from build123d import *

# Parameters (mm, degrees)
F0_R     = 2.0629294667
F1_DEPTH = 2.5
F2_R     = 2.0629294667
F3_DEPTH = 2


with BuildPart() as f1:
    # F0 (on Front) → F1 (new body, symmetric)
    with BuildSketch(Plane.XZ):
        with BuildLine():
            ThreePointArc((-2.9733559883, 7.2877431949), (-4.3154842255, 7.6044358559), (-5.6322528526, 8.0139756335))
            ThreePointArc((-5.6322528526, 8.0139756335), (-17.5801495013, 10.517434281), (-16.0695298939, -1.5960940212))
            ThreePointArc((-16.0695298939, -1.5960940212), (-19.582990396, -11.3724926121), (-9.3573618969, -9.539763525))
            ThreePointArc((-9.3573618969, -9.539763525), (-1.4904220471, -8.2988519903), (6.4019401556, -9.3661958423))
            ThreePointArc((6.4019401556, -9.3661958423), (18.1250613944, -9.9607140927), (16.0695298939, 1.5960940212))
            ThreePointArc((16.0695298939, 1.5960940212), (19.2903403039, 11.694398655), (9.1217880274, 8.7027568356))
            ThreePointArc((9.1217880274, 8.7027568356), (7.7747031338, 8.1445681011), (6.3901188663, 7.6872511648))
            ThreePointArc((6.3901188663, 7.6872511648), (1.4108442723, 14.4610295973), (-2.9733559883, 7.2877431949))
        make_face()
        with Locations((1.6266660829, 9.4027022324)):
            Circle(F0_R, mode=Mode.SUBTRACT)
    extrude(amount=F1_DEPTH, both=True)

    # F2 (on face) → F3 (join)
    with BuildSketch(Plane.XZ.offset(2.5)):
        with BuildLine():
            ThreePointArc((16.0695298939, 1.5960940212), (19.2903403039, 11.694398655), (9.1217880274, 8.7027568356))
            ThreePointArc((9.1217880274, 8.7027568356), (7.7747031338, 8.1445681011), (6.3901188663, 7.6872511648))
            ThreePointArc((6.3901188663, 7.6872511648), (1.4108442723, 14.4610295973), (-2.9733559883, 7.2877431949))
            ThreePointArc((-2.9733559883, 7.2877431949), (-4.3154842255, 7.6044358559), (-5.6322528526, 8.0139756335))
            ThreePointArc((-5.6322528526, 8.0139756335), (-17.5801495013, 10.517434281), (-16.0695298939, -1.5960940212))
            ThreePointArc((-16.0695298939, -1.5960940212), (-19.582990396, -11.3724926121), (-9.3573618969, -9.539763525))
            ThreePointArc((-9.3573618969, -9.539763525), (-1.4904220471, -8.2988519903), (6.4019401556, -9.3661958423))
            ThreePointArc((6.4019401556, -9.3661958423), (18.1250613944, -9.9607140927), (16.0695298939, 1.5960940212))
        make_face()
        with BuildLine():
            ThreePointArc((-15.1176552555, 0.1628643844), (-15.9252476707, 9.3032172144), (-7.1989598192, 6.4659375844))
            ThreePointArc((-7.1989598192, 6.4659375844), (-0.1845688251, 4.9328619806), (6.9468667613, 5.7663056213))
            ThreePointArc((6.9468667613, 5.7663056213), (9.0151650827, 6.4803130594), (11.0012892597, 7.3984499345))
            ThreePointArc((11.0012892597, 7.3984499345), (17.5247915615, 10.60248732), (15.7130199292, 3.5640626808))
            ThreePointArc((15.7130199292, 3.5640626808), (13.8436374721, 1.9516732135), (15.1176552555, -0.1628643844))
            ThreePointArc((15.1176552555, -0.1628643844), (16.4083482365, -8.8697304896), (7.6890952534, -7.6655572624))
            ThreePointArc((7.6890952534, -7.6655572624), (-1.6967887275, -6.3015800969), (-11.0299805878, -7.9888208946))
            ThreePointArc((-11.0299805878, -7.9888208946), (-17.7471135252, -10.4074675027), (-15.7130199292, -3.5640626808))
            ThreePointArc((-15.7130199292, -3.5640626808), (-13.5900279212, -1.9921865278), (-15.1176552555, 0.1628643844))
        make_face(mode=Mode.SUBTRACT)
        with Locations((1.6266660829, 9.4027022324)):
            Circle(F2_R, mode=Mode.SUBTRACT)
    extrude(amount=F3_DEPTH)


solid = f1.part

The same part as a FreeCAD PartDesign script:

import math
import FreeCAD as App
import Part
import Sketcher

V = App.Vector
Q = App.Units.Quantity

doc = App.newDocument("Part")
body = doc.addObject("PartDesign::Body", "Body")

sketch1 = doc.addObject("Sketcher::SketchObject", "Sketch")
body.addObject(sketch1)
sketch1.AttachmentSupport = (doc.XZ_Plane, [""])
sketch1.MapMode = "FlatFace"
sketch1.addGeometry([
    Part.ArcOfCircle(Part.Circle(V(0.890202, 26.663598, 0), V(0, 0, 1), 19.757298), math.radians(-109.276597), math.radians(-101.276908)),
    Part.ArcOfCircle(Part.Circle(V(-12.5, 5, 0), V(0, 0, 1), 7.5), math.radians(23.694722), math.radians(241.579604)),
    Part.ArcOfCircle(Part.Circle(V(-15, -7.5, 0), V(0, 0, 1), 6), math.radians(100.268134), math.radians(340.125527)),
    Part.ArcOfCircle(Part.Circle(V(-1.187814, -35.774543, 0), V(0, 0, 1), 27.477357), math.radians(73.965358), math.radians(107.296664)),
    Part.ArcOfCircle(Part.Circle(V(12.5, -5, 0), V(0, 0, 1), 7.5), math.radians(-144.39743), math.radians(61.579604)),
    Part.ArcOfCircle(Part.Circle(V(15, 7.5, 0), V(0, 0, 1), 6), math.radians(-79.731866), math.radians(168.436171)),
    Part.ArcOfCircle(Part.Circle(V(0.890202, 26.663598, 0), V(0, 0, 1), 19.757298), math.radians(-73.836819), math.radians(-65.377664)),
    Part.ArcOfCircle(Part.Circle(V(1.626666, 9.402702, 0), V(0, 0, 1), 5.062929), math.radians(-19.805351), math.radians(204.691624)),
    Part.Circle(V(1.626666, 9.402702, 0), V(0, 0, 1), 2.062929),
], False)
sketch1.addConstraint([
    Sketcher.Constraint("Coincident", 0, 1, 1, 1),
    Sketcher.Constraint("Coincident", 1, 2, 2, 1),
    Sketcher.Constraint("Coincident", 2, 2, 3, 2),
    Sketcher.Constraint("Coincident", 3, 1, 4, 1),
    Sketcher.Constraint("Coincident", 4, 2, 5, 1),
    Sketcher.Constraint("Coincident", 5, 2, 6, 2),
    Sketcher.Constraint("Coincident", 6, 1, 7, 1),
    Sketcher.Constraint("Coincident", 7, 2, 0, 2),
    Sketcher.Constraint("Coincident", 6, 3, 0, 3),
    Sketcher.Constraint("Coincident", 8, 3, 7, 3),
    Sketcher.Constraint("Equal", 1, 4),
    Sketcher.Constraint("Equal", 2, 5),
    Sketcher.Constraint("Equal", 0, 6),
    Sketcher.Constraint("Symmetric", 1, 3, 4, 3, -1, 1),
    Sketcher.Constraint("Symmetric", 2, 3, 5, 3, -1, 1),
    Sketcher.Constraint("Radius", 2, Q("6 mm")),
    Sketcher.Constraint("Radius", 1, Q("7.5 mm")),
    Sketcher.Constraint("DistanceY", -1, 1, 1, 3, Q("5 mm")),
    Sketcher.Constraint("DistanceX", 2, 3, -1, 1, Q("15 mm")),
    Sketcher.Constraint("DistanceX", 1, 3, 4, 3, Q("25 mm")),
    Sketcher.Constraint("DistanceY", 2, 3, 5, 3, Q("15 mm")),
    Sketcher.Constraint("Radius", 0, Q("19.757298 mm")),
    Sketcher.Constraint("Diameter", 8, Q("4.125859 mm")),
    Sketcher.Constraint("Radius", 7, Q("5.062929 mm")),
    Sketcher.Constraint("Radius", 3, Q("27.477357 mm")),
    Sketcher.Constraint("DistanceX", -1, 1, 0, 3, Q("0.890202 mm")),
    Sketcher.Constraint("DistanceY", -1, 1, 0, 3, Q("26.663598 mm")),
    Sketcher.Constraint("DistanceY", 3, 1, 7, 3, Q("18.768898 mm")),
    Sketcher.Constraint("DistanceX", 2, 2, -1, 1, Q("9.357362 mm")),
    Sketcher.Constraint("DistanceX", -1, 1, 3, 1, Q("6.40194 mm")),
    Sketcher.Constraint("DistanceX", -1, 1, 6, 1, Q("6.390119 mm")),
])
pad1 = doc.addObject("PartDesign::Pad", "Pad")
body.addObject(pad1)
pad1.Profile = sketch1
pad1.Length = 5
pad1.Midplane = True

sketch2 = doc.addObject("Sketcher::SketchObject", "Sketch001")
body.addObject(sketch2)
sketch2.AttachmentSupport = (doc.XZ_Plane, [""])
sketch2.MapMode = "FlatFace"
sketch2.AttachmentOffset = App.Placement(V(0, 0, 2.5), App.Rotation())
sketch2.addGeometry([
    Part.ArcOfCircle(Part.Circle(V(15, 7.5, 0), V(0, 0, 1), 6), math.radians(-79.731866), math.radians(168.436171)),
    Part.ArcOfCircle(Part.Circle(V(0.890202, 26.663598, 0), V(0, 0, 1), 19.757298), math.radians(-73.836819), math.radians(-65.377664)),
    Part.ArcOfCircle(Part.Circle(V(1.626666, 9.402702, 0), V(0, 0, 1), 5.062929), math.radians(-19.805351), math.radians(204.691624)),
    Part.ArcOfCircle(Part.Circle(V(0.890202, 26.663598, 0), V(0, 0, 1), 19.757298), math.radians(-109.276597), math.radians(-101.276908)),
    Part.ArcOfCircle(Part.Circle(V(-12.5, 5, 0), V(0, 0, 1), 7.5), math.radians(23.694722), math.radians(241.579604)),
    Part.ArcOfCircle(Part.Circle(V(-15, -7.5, 0), V(0, 0, 1), 6), math.radians(100.268134), math.radians(340.125527)),
    Part.ArcOfCircle(Part.Circle(V(-1.187814, -35.774543, 0), V(0, 0, 1), 27.477357), math.radians(73.965358), math.radians(107.296664)),
    Part.ArcOfCircle(Part.Circle(V(12.5, -5, 0), V(0, 0, 1), 7.5), math.radians(-144.39743), math.radians(61.579604)),
    Part.ArcOfCircle(Part.Circle(V(-15.45389, -1.69444, 0), V(0, 0, 1), 1.887494), math.radians(-97.890926), math.radians(79.738663)),
    Part.ArcOfCircle(Part.Circle(V(-12.5, 5, 0), V(0, 0, 1), 5.5), math.radians(15.45813), math.radians(241.579604)),
    Part.ArcOfCircle(Part.Circle(V(0.890202, 26.663598, 0), V(0, 0, 1), 21.757298), math.radians(-111.826098), math.radians(-73.836819)),
    Part.ArcOfCircle(Part.Circle(V(0.890202, 26.663598, 0), V(0, 0, 1), 21.757298), math.radians(-73.836819), math.radians(-62.307791)),
    Part.ArcOfCircle(Part.Circle(V(15, 7.5, 0), V(0, 0, 1), 4), math.radians(-79.731866), math.radians(181.454754)),
    Part.ArcOfCircle(Part.Circle(V(15.734182, 1.649665, 0), V(0, 0, 1), 1.914515), math.radians(90.633326), math.radians(251.214411)),
    Part.ArcOfCircle(Part.Circle(V(12.5, -5, 0), V(0, 0, 1), 5.5), math.radians(-151.010667), math.radians(61.579604)),
    Part.ArcOfCircle(Part.Circle(V(-1.187814, -35.774543, 0), V(0, 0, 1), 29.477357), math.radians(72.473713), math.radians(109.504996)),
    Part.ArcOfCircle(Part.Circle(V(-15, -7.5, 0), V(0, 0, 1), 4), math.radians(100.268134), math.radians(352.980611)),
    Part.Circle(V(1.626666, 9.402702, 0), V(0, 0, 1), 2.062929),
], False)
sketch2.addConstraint([
    Sketcher.Constraint("Coincident", 0, 2, 1, 2),
    Sketcher.Constraint("Coincident", 1, 1, 2, 1),
    Sketcher.Constraint("Coincident", 2, 2, 3, 2),
    Sketcher.Constraint("Coincident", 3, 1, 4, 1),
    Sketcher.Constraint("Coincident", 4, 2, 5, 1),
    Sketcher.Constraint("Coincident", 5, 2, 6, 2),
    Sketcher.Constraint("Coincident", 6, 1, 7, 1),
    Sketcher.Constraint("Coincident", 7, 2, 0, 1),
    Sketcher.Constraint("Coincident", 8, 2, 9, 2),
    Sketcher.Constraint("Coincident", 9, 1, 10, 1),
    Sketcher.Constraint("Tangent", 10, 2, 11, 1),
    Sketcher.Constraint("Coincident", 11, 2, 12, 2),
    Sketcher.Constraint("Coincident", 12, 1, 13, 1),
    Sketcher.Constraint("Coincident", 13, 2, 14, 2),
    Sketcher.Constraint("Coincident", 14, 1, 15, 1),
    Sketcher.Constraint("Coincident", 15, 2, 16, 2),
    Sketcher.Constraint("Coincident", 16, 1, 8, 1),
    Sketcher.Constraint("Coincident", 3, 3, 1, 3),
    Sketcher.Constraint("Coincident", 9, 3, 4, 3),
    Sketcher.Constraint("Coincident", 10, 3, 1, 3),
    Sketcher.Constraint("Coincident", 12, 3, 0, 3),
    Sketcher.Constraint("Coincident", 14, 3, 7, 3),
    Sketcher.Constraint("Coincident", 15, 3, 6, 3),
    Sketcher.Constraint("Coincident", 16, 3, 5, 3),
    Sketcher.Constraint("Coincident", 17, 3, 2, 3),
    Sketcher.Constraint("Equal", 1, 3),
    Sketcher.Constraint("Equal", 0, 5),
    Sketcher.Constraint("Equal", 4, 7),
    Sketcher.Constraint("Equal", 10, 11),
    Sketcher.Constraint("Equal", 9, 14),
    Sketcher.Constraint("Equal", 12, 16),
    Sketcher.Constraint("Symmetric", 0, 3, 5, 3, -1, 1),
    Sketcher.Constraint("Symmetric", 4, 3, 7, 3, -1, 1),
    Sketcher.Constraint("Radius", 0, Q("6 mm")),
    Sketcher.Constraint("Radius", 12, Q("4 mm")),
    Sketcher.Constraint("Radius", 4, Q("7.5 mm")),
    Sketcher.Constraint("Radius", 9, Q("5.5 mm")),
    Sketcher.Constraint("DistanceX", -1, 1, 0, 3, Q("15 mm")),
    Sketcher.Constraint("DistanceY", -1, 1, 4, 3, Q("5 mm")),
    Sketcher.Constraint("DistanceY", 5, 3, 0, 3, Q("15 mm")),
    Sketcher.Constraint("DistanceX", 4, 3, 7, 3, Q("25 mm")),
    Sketcher.Constraint("Radius", 1, Q("19.757298 mm")),
    Sketcher.Constraint("Radius", 10, Q("21.757298 mm")),
    Sketcher.Constraint("Diameter", 17, Q("4.125859 mm")),
    Sketcher.Constraint("Radius", 2, Q("5.062929 mm")),
    Sketcher.Constraint("Radius", 6, Q("27.477357 mm")),
    Sketcher.Constraint("Radius", 8, Q("1.887494 mm")),
    Sketcher.Constraint("Radius", 13, Q("1.914515 mm")),
    Sketcher.Constraint("Radius", 15, Q("29.477357 mm")),
    Sketcher.Constraint("DistanceX", -1, 1, 1, 3, Q("0.890202 mm")),
    Sketcher.Constraint("DistanceY", -1, 1, 1, 3, Q("26.663598 mm")),
    Sketcher.Constraint("DistanceX", 2, 3, 10, 2, Q("5.320201 mm")),
    Sketcher.Constraint("DistanceY", 11, 2, 1, 1, Q("0.288801 mm")),
    Sketcher.Constraint("DistanceX", 8, 3, -1, 1, Q("15.45389 mm")),
    Sketcher.Constraint("DistanceY", 8, 3, -1, 1, Q("1.69444 mm")),
    Sketcher.Constraint("DistanceX", -1, 1, 13, 3, Q("15.734182 mm")),
    Sketcher.Constraint("DistanceX", 5, 2, -1, 1, Q("9.357362 mm")),
    Sketcher.Constraint("DistanceX", -1, 1, 6, 1, Q("6.40194 mm")),
    Sketcher.Constraint("DistanceX", -1, 1, 12, 1, Q("15.71302 mm")),
    Sketcher.Constraint("DistanceX", 6, 3, 2, 3, Q("2.81448 mm")),
])
pad2 = doc.addObject("PartDesign::Pad", "Pad001")
body.addObject(pad2)
pad2.Profile = sketch2
pad2.Length = 2

doc.recompute()
